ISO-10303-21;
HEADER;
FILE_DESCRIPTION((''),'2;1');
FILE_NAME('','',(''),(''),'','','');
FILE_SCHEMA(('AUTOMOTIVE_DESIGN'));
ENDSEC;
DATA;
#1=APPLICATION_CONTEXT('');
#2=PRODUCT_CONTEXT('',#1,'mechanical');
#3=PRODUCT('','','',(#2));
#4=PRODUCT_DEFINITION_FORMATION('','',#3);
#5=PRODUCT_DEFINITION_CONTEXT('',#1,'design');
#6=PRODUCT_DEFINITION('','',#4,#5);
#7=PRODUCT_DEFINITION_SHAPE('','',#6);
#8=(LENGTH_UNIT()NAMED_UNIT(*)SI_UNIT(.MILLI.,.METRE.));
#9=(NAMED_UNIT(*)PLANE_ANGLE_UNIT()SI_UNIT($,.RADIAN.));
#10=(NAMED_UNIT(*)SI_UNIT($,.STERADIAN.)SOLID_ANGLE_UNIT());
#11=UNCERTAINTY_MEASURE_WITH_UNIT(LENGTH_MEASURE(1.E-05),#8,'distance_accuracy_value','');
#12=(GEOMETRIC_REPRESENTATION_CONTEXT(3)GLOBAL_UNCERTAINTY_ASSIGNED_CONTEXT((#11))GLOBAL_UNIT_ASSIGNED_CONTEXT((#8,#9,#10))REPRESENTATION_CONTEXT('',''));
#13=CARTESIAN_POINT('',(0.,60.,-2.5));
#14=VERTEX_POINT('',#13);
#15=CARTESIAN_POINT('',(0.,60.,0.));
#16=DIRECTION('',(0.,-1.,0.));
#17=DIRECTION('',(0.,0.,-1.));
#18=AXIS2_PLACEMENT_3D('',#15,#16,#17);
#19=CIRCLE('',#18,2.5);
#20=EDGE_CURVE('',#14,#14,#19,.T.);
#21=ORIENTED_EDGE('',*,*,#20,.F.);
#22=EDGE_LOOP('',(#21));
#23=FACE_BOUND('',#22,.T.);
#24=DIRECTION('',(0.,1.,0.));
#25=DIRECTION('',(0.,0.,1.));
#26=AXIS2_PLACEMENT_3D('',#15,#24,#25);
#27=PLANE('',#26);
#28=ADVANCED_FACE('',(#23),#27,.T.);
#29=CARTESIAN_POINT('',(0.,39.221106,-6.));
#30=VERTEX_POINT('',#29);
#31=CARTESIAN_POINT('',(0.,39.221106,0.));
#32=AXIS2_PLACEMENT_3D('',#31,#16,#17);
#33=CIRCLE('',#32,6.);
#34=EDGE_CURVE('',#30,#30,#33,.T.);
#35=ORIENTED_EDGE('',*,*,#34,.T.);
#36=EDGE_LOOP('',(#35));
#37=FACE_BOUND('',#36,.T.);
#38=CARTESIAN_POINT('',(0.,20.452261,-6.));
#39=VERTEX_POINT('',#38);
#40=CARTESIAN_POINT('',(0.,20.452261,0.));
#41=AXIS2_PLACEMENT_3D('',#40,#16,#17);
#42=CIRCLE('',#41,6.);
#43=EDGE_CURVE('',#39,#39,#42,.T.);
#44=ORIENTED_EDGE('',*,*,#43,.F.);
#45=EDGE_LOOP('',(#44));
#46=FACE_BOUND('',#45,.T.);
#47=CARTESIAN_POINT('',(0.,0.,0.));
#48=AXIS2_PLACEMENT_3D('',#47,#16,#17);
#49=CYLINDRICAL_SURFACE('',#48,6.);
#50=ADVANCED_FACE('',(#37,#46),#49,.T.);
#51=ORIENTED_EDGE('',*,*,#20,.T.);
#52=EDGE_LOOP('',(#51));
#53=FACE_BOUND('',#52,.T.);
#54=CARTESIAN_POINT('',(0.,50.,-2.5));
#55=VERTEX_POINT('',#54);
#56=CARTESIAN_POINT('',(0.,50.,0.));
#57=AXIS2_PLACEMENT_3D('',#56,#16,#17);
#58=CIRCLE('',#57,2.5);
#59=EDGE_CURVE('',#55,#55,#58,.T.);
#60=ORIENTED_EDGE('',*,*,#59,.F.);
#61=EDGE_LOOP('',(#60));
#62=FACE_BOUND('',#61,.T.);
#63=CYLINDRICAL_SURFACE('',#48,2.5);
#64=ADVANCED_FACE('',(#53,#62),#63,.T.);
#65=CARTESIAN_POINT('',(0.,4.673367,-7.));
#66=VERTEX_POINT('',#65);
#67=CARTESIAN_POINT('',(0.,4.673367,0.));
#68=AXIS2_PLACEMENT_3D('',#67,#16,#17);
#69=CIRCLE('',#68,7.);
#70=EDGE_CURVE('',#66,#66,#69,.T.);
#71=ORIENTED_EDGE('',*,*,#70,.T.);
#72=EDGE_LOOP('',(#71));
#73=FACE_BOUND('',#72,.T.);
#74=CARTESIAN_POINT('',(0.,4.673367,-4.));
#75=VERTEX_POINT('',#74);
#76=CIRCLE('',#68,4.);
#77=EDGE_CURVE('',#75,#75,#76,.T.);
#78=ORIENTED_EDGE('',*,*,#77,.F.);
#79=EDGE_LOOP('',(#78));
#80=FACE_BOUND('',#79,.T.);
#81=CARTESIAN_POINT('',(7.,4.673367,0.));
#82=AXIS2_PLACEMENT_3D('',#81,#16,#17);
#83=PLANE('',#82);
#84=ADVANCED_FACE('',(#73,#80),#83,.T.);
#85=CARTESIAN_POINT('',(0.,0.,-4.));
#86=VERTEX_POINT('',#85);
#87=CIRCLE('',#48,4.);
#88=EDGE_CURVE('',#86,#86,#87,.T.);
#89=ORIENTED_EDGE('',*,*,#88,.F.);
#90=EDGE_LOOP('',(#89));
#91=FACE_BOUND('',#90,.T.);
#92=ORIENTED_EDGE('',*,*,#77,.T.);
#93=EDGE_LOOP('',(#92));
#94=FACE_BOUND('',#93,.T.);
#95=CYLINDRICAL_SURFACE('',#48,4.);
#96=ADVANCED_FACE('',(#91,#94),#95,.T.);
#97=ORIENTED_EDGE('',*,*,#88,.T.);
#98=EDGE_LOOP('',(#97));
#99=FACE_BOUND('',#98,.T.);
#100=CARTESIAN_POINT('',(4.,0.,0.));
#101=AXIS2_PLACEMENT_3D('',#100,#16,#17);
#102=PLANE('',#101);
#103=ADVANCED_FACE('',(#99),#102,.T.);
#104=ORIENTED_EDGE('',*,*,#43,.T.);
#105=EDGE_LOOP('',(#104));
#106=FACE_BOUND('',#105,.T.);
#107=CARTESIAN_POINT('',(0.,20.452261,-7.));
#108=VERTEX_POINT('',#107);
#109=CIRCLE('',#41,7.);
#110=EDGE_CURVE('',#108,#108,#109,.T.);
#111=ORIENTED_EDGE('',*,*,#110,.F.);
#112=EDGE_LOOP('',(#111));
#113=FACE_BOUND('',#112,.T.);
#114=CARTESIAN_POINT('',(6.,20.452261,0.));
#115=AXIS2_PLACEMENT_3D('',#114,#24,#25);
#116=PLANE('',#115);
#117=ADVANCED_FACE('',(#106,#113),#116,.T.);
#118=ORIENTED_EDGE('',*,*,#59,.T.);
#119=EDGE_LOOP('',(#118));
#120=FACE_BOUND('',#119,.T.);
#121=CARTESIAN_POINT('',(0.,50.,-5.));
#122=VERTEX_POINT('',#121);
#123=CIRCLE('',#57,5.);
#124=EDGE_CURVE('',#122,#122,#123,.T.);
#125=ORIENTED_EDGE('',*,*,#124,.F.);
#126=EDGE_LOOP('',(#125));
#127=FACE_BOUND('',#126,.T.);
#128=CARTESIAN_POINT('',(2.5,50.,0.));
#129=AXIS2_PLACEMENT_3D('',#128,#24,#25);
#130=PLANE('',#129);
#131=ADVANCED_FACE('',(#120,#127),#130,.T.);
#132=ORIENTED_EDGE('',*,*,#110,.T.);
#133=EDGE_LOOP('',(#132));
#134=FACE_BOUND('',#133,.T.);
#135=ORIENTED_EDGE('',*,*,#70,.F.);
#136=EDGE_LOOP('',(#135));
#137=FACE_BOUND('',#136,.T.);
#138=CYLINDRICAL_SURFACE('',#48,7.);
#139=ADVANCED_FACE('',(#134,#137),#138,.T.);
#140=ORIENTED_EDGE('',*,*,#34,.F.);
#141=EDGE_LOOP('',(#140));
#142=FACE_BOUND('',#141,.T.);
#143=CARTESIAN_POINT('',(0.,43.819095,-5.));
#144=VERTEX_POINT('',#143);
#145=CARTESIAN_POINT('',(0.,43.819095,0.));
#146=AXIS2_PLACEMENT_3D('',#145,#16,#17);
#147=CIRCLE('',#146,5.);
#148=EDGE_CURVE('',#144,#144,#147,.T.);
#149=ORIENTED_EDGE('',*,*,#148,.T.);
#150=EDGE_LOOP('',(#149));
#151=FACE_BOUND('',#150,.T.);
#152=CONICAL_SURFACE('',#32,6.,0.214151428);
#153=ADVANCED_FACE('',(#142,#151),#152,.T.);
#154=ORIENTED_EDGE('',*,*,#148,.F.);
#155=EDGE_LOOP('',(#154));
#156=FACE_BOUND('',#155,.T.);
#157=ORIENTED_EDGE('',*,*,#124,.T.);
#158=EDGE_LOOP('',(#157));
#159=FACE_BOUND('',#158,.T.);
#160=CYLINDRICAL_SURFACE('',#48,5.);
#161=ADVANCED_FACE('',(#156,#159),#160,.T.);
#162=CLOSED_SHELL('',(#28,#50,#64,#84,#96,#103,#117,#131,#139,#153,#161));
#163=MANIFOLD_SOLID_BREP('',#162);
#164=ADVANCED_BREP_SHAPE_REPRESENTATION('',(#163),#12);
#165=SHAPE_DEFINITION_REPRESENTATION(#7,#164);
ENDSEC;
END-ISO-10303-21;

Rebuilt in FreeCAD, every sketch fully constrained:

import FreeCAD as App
import Part
import Sketcher
Q = App.Units.Quantity


def add_polygon(sketch, points):
    """Adds a closed chain of lines whose ends are joined by coincident constraints."""
    first, n = sketch.GeometryCount, len(points)
    for a, b in zip(points, points[1:] + points[:1]):
        sketch.addGeometry(Part.LineSegment(App.Vector(*a, 0), App.Vector(*b, 0)), False)
    for i in range(n):
        sketch.addConstraint(Sketcher.Constraint("Coincident", first + i, 2, first + (i + 1) % n, 1))

doc = App.newDocument("Part")
params = doc.addObject("Spreadsheet::Sheet", "Params")
for row, (alias, value) in enumerate([
    ("sketch1_width", "4 mm"),
    ("sketch1_width2", "3 mm"),
    ("sketch1_width3", "1 mm"),
    ("sketch1_height", "60 mm"),
    ("sketch1_height2", "10 mm"),
    ("revolution_angle", "360 deg"),
], start=1):
    params.set(f"A{row}", alias)
    params.set(f"B{row}", "=" + value)
    params.setAlias(f"B{row}", alias)

body = doc.addObject("PartDesign::Body", "Body")

# Sketch on XY plane
sketch1 = body.newObject("Sketcher::SketchObject", "Sketch")
sketch1.AttachmentSupport = (doc.getObject("XY_Plane"), [""])
sketch1.MapMode = "FlatFace"
add_polygon(sketch1, [(2.5, 60), (0, 60), (0, 0), (4, 0), (4, 4.7), (7, 4.7), (7, 20.5), (6, 20.5), (6, 39.2), (5, 43.8), (5, 50), (2.5, 50)])  # lines 0-11
sketch1.addConstraint(Sketcher.Constraint("Horizontal", 0))
sketch1.addConstraint(Sketcher.Constraint("Vertical", 1))
sketch1.addConstraint(Sketcher.Constraint("Horizontal", 2))
sketch1.addConstraint(Sketcher.Constraint("Vertical", 3))
sketch1.addConstraint(Sketcher.Constraint("Horizontal", 4))
sketch1.addConstraint(Sketcher.Constraint("Vertical", 5))
sketch1.addConstraint(Sketcher.Constraint("Horizontal", 6))
sketch1.addConstraint(Sketcher.Constraint("Vertical", 7))
sketch1.addConstraint(Sketcher.Constraint("Vertical", 9))
sketch1.addConstraint(Sketcher.Constraint("Horizontal", 10))
sketch1.addConstraint(Sketcher.Constraint("Vertical", 11))
sketch1.addConstraint(Sketcher.Constraint("Coincident", 1, 2, -1, 1))
sketch1.addConstraint(Sketcher.Constraint("Equal", 0, 10))
sketch1.addConstraint(Sketcher.Constraint("DistanceX", 2, 1, 2, 2, Q("4 mm")))
sketch1.addConstraint(Sketcher.Constraint("DistanceX", 4, 1, 4, 2, Q("3 mm")))
sketch1.addConstraint(Sketcher.Constraint("DistanceX", 6, 2, 6, 1, Q("1 mm")))
sketch1.addConstraint(Sketcher.Constraint("DistanceY", 1, 2, 1, 1, Q("60 mm")))
sketch1.addConstraint(Sketcher.Constraint("DistanceY", 11, 1, 11, 2, Q("10 mm")))
sketch1.addConstraint(Sketcher.Constraint("DistanceX", 0, 2, 0, 1, Q("2.5 mm")))
sketch1.addConstraint(Sketcher.Constraint("DistanceY", 3, 1, 3, 2, Q("4.673367 mm")))
sketch1.addConstraint(Sketcher.Constraint("DistanceY", 5, 1, 5, 2, Q("15.778894 mm")))
sketch1.addConstraint(Sketcher.Constraint("DistanceY", 7, 1, 7, 2, Q("18.768844 mm")))
sketch1.addConstraint(Sketcher.Constraint("DistanceY", 9, 1, 9, 2, Q("6.180905 mm")))
sketch1.setExpression("Constraints[25]", "Params.sketch1_width")
sketch1.setExpression("Constraints[26]", "Params.sketch1_width2")
sketch1.setExpression("Constraints[27]", "Params.sketch1_width3")
sketch1.setExpression("Constraints[28]", "Params.sketch1_height")
sketch1.setExpression("Constraints[29]", "Params.sketch1_height2")
revolution = body.newObject("PartDesign::Revolution", "Revolution")
revolution.Profile = sketch1
revolution.ReferenceAxis = (sketch1, ["V_Axis"])
revolution.setExpression("Angle", "Params.revolution_angle")

doc.recompute()
